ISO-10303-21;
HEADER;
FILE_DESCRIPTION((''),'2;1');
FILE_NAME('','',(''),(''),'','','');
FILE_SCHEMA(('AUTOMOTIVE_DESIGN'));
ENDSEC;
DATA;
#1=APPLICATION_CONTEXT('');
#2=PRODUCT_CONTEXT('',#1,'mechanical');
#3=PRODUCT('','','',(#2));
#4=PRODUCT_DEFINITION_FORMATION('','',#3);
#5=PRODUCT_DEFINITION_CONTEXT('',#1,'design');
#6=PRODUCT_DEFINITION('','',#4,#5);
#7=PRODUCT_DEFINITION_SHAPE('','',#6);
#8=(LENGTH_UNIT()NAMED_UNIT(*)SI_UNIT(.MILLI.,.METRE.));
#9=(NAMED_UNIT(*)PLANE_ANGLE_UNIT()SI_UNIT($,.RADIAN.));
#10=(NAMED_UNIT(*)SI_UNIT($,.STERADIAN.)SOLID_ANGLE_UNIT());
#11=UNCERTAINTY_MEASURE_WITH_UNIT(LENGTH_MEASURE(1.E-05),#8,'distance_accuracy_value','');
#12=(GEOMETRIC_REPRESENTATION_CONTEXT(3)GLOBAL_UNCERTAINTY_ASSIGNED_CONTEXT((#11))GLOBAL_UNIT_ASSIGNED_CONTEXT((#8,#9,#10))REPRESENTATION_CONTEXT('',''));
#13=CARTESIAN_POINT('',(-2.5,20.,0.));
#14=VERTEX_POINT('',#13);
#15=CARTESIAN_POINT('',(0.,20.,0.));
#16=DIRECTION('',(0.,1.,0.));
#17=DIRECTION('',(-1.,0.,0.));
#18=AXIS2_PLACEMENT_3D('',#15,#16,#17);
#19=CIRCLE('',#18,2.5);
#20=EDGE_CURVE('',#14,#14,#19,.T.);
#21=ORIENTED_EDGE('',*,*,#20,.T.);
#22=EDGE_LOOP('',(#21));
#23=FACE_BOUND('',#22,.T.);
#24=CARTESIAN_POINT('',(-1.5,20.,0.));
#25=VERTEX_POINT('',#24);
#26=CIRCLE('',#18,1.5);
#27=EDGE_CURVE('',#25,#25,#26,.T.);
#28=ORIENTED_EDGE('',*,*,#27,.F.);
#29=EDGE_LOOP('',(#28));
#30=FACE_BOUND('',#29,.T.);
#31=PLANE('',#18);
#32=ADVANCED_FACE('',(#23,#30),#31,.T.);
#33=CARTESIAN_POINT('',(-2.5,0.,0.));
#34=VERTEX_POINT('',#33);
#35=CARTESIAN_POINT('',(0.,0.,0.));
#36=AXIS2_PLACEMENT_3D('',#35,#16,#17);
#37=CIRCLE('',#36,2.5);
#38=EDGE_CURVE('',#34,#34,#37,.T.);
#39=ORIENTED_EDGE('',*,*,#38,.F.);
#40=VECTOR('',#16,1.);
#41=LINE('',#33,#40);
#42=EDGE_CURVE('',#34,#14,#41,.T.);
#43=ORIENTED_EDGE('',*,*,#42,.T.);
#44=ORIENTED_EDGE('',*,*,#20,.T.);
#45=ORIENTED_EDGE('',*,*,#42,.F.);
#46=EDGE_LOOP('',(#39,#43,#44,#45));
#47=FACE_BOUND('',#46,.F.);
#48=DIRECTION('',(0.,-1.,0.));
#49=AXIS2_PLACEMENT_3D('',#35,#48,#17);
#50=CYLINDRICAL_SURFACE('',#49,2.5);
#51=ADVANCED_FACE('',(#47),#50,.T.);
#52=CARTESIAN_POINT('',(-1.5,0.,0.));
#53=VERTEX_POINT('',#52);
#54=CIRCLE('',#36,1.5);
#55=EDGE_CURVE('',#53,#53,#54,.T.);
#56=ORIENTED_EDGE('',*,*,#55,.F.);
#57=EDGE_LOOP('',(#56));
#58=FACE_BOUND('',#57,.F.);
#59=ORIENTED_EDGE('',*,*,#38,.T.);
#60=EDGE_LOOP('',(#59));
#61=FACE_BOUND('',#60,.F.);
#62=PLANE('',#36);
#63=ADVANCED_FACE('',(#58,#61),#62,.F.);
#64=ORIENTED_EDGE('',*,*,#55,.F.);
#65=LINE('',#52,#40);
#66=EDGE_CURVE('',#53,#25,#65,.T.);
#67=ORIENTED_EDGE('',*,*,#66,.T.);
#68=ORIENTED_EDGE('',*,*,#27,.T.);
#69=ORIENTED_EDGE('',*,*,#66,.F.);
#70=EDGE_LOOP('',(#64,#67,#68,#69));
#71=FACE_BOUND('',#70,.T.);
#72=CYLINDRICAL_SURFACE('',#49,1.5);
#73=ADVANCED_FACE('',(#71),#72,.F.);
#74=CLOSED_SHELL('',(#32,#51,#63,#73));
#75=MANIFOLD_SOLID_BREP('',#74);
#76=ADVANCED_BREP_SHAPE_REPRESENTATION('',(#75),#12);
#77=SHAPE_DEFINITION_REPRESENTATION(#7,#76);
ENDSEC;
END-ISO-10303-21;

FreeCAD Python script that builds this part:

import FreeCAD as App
import Part
import Sketcher

V = App.Vector

doc = App.newDocument("Part")
body = doc.addObject("PartDesign::Body", "Body")

# Sketch on XZ plane
sketch1 = doc.addObject("Sketcher::SketchObject", "Sketch")
body.addObject(sketch1)
sketch1.AttachmentSupport = (doc.XZ_Plane, [""])
sketch1.MapMode = "FlatFace"
sketch1.addGeometry([
    Part.Circle(V(0, 0, 0), V(0, 0, 1), 2.5),
    Part.Circle(V(0, 0, 0), V(0, 0, 1), 1.5),
], False)
sketch1.addConstraint([
    Sketcher.Constraint("Coincident", 0, 3, -1, 1),
    Sketcher.Constraint("Coincident", 1, 3, -1, 1),
    Sketcher.Constraint("Diameter", 0, 5.0),
    Sketcher.Constraint("Diameter", 1, 3.0),
])
pad1 = doc.addObject("PartDesign::Pad", "Pad")
body.addObject(pad1)
pad1.Profile = sketch1
pad1.Length = 20
pad1.Reversed = True

doc.recompute()
